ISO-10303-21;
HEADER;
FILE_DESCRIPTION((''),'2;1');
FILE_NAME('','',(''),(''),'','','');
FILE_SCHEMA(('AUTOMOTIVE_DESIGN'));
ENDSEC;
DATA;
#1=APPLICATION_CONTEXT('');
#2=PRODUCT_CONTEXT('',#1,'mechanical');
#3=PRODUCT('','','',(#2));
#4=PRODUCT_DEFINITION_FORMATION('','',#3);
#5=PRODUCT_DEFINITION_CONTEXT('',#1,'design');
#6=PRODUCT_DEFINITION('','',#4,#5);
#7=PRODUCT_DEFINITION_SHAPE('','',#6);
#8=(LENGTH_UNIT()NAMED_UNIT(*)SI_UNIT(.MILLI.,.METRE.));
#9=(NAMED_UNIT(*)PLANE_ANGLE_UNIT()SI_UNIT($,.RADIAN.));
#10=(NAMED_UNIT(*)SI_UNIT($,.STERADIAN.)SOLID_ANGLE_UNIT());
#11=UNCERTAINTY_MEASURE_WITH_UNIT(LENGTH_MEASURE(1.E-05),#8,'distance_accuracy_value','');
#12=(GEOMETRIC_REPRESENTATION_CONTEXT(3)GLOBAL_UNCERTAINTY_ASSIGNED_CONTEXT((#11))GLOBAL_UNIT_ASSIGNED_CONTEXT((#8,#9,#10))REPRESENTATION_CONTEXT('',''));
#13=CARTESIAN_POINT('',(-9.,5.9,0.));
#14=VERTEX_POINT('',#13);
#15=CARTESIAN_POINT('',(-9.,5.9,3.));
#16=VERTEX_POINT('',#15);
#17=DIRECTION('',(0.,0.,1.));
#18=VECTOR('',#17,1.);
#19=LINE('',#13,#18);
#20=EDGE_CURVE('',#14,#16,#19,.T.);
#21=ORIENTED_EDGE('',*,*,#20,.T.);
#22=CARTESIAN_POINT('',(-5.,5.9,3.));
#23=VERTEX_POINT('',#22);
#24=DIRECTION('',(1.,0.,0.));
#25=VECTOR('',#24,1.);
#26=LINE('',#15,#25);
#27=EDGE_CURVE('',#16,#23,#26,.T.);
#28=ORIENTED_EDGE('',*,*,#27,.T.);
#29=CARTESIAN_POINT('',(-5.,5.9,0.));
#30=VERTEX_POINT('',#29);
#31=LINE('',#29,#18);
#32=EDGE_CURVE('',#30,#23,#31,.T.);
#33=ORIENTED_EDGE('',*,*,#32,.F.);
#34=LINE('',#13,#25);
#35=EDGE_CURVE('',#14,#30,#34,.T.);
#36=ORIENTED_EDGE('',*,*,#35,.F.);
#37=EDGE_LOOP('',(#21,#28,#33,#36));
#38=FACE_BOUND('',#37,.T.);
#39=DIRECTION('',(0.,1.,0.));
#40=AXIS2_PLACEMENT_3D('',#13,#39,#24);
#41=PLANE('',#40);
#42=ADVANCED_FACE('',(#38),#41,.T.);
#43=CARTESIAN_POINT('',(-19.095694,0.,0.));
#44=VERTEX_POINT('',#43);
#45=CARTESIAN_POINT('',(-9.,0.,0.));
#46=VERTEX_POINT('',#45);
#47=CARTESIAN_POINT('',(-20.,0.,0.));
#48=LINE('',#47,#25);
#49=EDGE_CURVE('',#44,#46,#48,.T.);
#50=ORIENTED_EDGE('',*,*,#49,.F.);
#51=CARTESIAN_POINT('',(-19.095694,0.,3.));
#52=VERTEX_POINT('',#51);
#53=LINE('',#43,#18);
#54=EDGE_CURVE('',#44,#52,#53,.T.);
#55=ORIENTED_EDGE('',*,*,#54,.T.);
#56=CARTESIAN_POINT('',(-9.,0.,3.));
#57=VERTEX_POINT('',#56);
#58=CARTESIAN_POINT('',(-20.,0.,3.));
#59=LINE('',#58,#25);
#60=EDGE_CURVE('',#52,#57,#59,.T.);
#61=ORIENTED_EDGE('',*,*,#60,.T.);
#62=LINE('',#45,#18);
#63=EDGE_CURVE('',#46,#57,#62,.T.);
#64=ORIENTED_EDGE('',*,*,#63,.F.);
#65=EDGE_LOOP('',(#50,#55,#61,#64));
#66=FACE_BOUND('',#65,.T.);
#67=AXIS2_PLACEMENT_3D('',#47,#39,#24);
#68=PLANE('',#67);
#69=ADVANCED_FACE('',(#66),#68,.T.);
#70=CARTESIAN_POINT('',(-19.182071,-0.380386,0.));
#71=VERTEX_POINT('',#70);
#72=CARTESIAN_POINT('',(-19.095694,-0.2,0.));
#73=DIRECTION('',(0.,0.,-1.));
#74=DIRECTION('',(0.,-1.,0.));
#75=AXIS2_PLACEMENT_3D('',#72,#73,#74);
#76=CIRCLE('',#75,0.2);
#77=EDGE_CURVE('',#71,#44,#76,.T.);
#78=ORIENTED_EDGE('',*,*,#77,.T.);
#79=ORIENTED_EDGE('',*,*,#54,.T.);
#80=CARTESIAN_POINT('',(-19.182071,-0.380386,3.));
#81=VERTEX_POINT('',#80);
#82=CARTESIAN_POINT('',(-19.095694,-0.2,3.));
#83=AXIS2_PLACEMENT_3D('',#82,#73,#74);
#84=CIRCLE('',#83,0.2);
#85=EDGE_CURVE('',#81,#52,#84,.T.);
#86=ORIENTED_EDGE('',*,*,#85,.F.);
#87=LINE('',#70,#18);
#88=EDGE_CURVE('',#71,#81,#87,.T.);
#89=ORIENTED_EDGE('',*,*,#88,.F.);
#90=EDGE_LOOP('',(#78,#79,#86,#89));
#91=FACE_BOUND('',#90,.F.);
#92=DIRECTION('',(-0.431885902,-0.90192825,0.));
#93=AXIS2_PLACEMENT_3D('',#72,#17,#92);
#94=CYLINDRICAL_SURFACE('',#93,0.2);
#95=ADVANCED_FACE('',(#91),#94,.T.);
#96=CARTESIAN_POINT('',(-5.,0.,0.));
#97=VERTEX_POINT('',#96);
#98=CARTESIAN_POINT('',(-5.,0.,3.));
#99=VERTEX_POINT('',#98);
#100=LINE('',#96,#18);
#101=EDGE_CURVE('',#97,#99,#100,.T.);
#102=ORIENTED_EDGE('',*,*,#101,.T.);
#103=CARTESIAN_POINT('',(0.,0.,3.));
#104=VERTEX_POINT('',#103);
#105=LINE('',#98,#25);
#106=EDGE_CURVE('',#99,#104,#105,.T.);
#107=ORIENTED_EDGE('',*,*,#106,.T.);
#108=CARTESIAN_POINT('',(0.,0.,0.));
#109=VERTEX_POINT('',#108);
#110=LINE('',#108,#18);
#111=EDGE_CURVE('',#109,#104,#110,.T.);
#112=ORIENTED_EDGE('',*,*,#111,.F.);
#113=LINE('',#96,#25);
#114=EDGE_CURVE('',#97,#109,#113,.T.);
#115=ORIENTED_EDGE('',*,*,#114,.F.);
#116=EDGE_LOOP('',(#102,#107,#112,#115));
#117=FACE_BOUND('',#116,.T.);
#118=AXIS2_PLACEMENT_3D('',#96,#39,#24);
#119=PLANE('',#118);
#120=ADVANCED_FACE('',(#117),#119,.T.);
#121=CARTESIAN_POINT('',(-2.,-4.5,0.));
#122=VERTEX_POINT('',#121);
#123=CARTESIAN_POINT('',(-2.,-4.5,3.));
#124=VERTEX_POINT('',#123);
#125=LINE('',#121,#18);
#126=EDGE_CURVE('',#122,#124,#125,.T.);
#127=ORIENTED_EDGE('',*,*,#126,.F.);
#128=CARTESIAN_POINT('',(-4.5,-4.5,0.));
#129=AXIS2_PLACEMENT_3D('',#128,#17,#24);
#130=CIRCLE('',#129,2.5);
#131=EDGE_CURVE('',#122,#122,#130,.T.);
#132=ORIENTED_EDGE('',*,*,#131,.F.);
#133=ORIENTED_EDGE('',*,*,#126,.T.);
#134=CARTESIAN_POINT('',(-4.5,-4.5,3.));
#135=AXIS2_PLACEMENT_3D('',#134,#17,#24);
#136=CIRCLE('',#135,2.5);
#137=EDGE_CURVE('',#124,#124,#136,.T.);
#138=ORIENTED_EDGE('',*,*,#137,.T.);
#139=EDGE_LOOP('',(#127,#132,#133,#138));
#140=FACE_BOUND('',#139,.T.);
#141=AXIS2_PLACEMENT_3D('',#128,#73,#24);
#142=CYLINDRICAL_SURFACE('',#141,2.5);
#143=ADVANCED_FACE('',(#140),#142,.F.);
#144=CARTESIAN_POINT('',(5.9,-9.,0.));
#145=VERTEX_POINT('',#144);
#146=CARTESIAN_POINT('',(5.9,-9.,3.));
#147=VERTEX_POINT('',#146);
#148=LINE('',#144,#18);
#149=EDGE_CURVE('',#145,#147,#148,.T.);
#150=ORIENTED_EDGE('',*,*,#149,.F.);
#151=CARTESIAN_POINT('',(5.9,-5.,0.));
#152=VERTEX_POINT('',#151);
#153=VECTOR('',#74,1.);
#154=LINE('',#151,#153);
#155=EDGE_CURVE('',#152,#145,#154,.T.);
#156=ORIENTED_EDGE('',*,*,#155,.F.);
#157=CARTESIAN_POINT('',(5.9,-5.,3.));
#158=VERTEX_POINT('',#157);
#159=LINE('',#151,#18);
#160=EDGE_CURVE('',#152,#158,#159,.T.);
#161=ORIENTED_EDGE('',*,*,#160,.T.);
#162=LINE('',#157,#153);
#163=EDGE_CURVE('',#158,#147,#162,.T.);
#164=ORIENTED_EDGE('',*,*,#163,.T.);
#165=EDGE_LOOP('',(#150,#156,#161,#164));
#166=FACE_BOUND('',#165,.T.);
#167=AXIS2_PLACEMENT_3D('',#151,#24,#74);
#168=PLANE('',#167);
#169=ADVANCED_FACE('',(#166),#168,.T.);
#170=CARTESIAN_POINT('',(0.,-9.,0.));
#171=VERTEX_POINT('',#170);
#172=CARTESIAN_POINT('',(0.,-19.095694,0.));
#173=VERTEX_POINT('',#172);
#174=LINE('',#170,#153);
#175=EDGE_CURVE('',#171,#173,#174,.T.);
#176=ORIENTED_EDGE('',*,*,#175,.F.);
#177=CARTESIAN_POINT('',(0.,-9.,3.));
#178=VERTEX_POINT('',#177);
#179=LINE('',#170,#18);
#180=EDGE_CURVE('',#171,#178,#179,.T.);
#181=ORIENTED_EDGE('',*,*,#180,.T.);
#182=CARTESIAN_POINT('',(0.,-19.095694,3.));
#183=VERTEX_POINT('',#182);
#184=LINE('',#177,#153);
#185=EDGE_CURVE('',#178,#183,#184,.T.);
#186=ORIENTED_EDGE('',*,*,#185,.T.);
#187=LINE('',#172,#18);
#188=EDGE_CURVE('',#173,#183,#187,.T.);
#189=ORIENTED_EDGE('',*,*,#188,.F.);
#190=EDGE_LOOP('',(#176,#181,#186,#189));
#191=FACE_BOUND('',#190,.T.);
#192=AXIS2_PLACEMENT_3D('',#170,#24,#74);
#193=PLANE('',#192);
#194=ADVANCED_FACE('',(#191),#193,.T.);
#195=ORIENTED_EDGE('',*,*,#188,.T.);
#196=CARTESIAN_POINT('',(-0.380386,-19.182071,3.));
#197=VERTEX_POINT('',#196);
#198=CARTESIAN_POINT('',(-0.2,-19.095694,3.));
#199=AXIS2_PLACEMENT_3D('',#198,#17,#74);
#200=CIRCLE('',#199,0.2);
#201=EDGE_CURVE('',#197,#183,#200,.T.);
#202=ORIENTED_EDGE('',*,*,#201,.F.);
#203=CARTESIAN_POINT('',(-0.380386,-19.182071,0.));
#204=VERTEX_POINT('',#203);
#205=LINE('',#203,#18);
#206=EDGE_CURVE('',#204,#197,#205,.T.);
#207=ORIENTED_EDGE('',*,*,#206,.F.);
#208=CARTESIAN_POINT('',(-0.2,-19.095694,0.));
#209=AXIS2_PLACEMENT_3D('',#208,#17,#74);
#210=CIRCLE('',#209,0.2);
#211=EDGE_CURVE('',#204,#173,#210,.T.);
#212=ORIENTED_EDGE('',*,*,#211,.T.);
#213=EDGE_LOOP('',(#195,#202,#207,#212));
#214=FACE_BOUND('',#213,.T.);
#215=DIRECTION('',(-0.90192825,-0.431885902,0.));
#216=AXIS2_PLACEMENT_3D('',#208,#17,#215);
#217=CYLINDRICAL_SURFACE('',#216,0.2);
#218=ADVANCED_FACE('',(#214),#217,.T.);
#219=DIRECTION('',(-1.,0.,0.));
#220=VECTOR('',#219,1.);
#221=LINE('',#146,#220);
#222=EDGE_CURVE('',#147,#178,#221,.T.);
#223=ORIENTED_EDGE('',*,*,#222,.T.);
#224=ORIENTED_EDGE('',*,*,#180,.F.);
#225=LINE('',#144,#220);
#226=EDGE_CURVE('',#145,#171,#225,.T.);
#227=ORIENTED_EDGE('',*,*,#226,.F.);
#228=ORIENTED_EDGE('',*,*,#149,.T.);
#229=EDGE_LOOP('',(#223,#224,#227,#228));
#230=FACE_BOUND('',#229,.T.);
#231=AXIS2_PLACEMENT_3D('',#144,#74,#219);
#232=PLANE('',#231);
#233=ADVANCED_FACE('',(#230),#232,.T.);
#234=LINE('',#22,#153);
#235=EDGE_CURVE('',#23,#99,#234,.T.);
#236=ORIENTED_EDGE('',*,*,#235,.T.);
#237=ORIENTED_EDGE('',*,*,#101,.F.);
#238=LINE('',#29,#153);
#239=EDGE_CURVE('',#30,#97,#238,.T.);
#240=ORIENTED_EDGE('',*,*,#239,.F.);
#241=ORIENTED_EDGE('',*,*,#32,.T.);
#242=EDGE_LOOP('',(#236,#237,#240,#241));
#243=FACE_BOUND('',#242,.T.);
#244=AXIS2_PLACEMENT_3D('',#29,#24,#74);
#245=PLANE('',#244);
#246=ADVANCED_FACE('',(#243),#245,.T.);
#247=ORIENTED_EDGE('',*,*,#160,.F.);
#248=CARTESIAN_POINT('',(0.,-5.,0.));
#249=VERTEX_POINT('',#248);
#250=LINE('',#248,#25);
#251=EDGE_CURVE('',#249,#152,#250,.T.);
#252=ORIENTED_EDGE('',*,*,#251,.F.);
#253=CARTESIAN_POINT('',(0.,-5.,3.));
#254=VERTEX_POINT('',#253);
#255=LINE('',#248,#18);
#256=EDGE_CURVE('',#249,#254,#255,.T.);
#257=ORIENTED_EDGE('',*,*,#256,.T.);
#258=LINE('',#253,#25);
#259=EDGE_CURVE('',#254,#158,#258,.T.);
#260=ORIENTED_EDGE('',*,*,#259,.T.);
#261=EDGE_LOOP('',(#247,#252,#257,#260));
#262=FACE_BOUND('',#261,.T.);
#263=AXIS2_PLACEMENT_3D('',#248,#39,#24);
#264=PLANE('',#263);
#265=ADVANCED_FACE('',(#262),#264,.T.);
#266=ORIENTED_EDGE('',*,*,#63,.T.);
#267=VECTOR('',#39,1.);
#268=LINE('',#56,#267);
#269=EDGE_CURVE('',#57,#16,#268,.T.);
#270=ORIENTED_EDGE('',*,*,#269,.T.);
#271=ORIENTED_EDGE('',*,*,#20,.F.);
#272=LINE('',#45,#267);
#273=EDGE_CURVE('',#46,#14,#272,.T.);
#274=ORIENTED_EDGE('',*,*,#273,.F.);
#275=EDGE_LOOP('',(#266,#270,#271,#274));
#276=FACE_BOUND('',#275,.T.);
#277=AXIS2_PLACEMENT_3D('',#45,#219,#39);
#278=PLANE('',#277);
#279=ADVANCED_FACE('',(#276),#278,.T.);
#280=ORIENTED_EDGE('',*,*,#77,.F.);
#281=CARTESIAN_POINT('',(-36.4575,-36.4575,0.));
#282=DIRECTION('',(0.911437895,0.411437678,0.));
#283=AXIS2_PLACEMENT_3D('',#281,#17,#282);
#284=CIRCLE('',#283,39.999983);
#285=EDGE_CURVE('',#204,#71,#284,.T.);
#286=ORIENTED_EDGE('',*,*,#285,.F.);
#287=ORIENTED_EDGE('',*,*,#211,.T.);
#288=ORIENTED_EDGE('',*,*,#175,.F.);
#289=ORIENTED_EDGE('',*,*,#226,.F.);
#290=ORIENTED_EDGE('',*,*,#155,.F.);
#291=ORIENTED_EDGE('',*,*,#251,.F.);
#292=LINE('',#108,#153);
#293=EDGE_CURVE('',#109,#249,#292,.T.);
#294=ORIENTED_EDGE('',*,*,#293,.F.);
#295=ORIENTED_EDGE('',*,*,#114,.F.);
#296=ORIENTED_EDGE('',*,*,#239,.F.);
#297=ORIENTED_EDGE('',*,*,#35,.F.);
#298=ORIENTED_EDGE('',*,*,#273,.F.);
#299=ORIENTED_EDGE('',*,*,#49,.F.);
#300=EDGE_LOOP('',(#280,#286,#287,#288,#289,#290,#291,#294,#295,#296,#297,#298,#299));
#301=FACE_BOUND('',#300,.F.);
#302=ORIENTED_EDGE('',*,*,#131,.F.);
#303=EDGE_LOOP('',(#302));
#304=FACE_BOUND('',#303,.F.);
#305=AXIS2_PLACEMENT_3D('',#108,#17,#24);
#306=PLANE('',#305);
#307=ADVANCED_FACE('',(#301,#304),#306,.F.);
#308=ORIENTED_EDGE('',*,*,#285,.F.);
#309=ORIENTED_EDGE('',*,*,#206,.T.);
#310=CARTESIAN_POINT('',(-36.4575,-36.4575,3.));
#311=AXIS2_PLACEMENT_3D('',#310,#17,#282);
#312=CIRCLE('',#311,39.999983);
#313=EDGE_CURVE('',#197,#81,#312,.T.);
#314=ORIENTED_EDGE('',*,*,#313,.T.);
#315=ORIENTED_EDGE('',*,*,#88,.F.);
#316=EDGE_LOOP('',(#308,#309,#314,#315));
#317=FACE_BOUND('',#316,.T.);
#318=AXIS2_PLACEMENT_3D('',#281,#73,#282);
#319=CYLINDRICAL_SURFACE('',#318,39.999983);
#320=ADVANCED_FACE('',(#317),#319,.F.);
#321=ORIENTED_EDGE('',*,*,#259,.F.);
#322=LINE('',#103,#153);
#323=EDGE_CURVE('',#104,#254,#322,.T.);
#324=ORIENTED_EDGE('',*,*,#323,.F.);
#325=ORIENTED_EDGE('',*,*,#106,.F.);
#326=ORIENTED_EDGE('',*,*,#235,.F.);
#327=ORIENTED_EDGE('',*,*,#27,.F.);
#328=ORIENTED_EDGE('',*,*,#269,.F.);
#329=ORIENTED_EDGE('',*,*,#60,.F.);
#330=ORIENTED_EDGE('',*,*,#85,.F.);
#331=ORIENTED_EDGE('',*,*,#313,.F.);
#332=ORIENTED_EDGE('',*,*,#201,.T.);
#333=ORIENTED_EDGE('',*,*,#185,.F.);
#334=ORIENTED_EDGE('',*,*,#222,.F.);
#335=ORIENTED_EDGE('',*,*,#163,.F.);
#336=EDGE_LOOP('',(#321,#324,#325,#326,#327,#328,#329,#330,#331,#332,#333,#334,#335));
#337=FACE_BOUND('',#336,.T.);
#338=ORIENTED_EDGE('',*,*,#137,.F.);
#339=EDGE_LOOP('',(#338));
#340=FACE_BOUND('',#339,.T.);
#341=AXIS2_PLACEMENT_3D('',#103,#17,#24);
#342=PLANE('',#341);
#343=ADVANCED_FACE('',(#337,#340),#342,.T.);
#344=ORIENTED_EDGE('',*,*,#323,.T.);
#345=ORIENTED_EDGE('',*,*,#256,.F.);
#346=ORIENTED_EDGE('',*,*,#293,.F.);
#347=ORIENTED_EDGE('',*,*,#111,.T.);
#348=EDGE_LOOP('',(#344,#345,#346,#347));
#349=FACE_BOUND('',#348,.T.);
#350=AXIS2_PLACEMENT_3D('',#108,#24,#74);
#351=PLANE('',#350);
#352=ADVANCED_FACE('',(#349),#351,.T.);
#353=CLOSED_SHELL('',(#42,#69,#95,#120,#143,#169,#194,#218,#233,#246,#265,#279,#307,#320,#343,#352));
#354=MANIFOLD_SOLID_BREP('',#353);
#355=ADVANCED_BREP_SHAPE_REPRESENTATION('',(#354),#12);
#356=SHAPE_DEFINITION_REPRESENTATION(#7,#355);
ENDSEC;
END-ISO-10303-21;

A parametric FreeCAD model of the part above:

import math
import FreeCAD as App
import Part
import Sketcher


def edges_at(feature, points):
    """Names of the edges that pass closest to the given points."""
    edges = feature.Shape.Edges
    near = lambda p: min(range(len(edges)), key=lambda i: edges[i].distToShape(Part.Vertex(*p))[0])
    return sorted({f"Edge{near(p) + 1}" for p in points})

doc = App.newDocument("Part")
body = doc.addObject("PartDesign::Body", "Body")

# Sketch on XY plane
sketch1 = body.newObject("Sketcher::SketchObject", "Sketch")
sketch1.AttachmentSupport = (doc.getObject("XY_Plane"), [""])
sketch1.MapMode = "FlatFace"
sketch1.addGeometry(Part.ArcOfCircle(Part.Circle(App.Vector(-36.5, -36.5, 0), App.Vector(0, 0, 1), 40), math.radians(24), math.radians(66)), False)
sketch1.addGeometry(Part.LineSegment(App.Vector(0, -20, 0), App.Vector(0, -9, 0)), False)
sketch1.addGeometry(Part.LineSegment(App.Vector(0, -9, 0), App.Vector(5.9, -9, 0)), False)
sketch1.addGeometry(Part.LineSegment(App.Vector(5.9, -9, 0), App.Vector(5.9, -5, 0)), False)
sketch1.addGeometry(Part.LineSegment(App.Vector(5.9, -5, 0), App.Vector(0, -5, 0)), False)
sketch1.addGeometry(Part.LineSegment(App.Vector(0, -5, 0), App.Vector(0, 0, 0)), False)
sketch1.addGeometry(Part.LineSegment(App.Vector(0, 0, 0), App.Vector(-5, 0, 0)), False)
sketch1.addGeometry(Part.LineSegment(App.Vector(-5, 0, 0), App.Vector(-5, 5.9, 0)), False)
sketch1.addGeometry(Part.LineSegment(App.Vector(-5, 5.9, 0), App.Vector(-9, 5.9, 0)), False)
sketch1.addGeometry(Part.LineSegment(App.Vector(-9, 5.9, 0), App.Vector(-9, 0, 0)), False)
sketch1.addGeometry(Part.LineSegment(App.Vector(-9, 0, 0), App.Vector(-20, 0, 0)), False)
sketch1.addGeometry(Part.Circle(App.Vector(-4.5, -4.5, 0), App.Vector(0, 0, 1), 2.5), False)
sketch1.addConstraint(Sketcher.Constraint("Coincident", 0, 1, 1, 1))
sketch1.addConstraint(Sketcher.Constraint("Coincident", 1, 2, 2, 1))
sketch1.addConstraint(Sketcher.Constraint("Coincident", 2, 2, 3, 1))
sketch1.addConstraint(Sketcher.Constraint("Coincident", 3, 2, 4, 1))
sketch1.addConstraint(Sketcher.Constraint("Coincident", 4, 2, 5, 1))
sketch1.addConstraint(Sketcher.Constraint("Coincident", 5, 2, 6, 1))
sketch1.addConstraint(Sketcher.Constraint("Coincident", 6, 2, 7, 1))
sketch1.addConstraint(Sketcher.Constraint("Coincident", 7, 2, 8, 1))
sketch1.addConstraint(Sketcher.Constraint("Coincident", 8, 2, 9, 1))
sketch1.addConstraint(Sketcher.Constraint("Coincident", 9, 2, 10, 1))
sketch1.addConstraint(Sketcher.Constraint("Coincident", 10, 2, 0, 2))
sketch1.addConstraint(Sketcher.Constraint("Vertical", 1))
sketch1.addConstraint(Sketcher.Constraint("Horizontal", 2))
sketch1.addConstraint(Sketcher.Constraint("Vertical", 3))
sketch1.addConstraint(Sketcher.Constraint("Horizontal", 4))
sketch1.addConstraint(Sketcher.Constraint("Vertical", 5))
sketch1.addConstraint(Sketcher.Constraint("Horizontal", 6))
sketch1.addConstraint(Sketcher.Constraint("Vertical", 7))
sketch1.addConstraint(Sketcher.Constraint("Horizontal", 8))
sketch1.addConstraint(Sketcher.Constraint("Vertical", 9))
sketch1.addConstraint(Sketcher.Constraint("Horizontal", 10))
sketch1.addConstraint(Sketcher.Constraint("Coincident", 5, 2, -1, 1))
sketch1.addConstraint(Sketcher.Constraint("PointOnObject", 0, 1, -2))
sketch1.addConstraint(Sketcher.Constraint("PointOnObject", 9, 2, -1))
sketch1.addConstraint(Sketcher.Constraint("Equal", 10, 1))
sketch1.addConstraint(Sketcher.Constraint("Equal", 8, 3))
sketch1.addConstraint(Sketcher.Constraint("Equal", 6, 5))
sketch1.addConstraint(Sketcher.Constraint("Equal", 4, 7))
sketch1.addConstraint(Sketcher.Constraint("Diameter", 11, 5.0))
sketch1.addConstraint(Sketcher.Constraint("Radius", 0, 40.0))
sketch1.addConstraint(Sketcher.Constraint("DistanceX", 6, 2, 6, 1, 5.0))
sketch1.addConstraint(Sketcher.Constraint("DistanceX", 8, 2, 8, 1, 4.0))
sketch1.addConstraint(Sketcher.Constraint("DistanceX", 2, 1, 2, 2, 5.9))
sketch1.addConstraint(Sketcher.Constraint("DistanceY", 0, 1, -1, 1, 20.0))
sketch1.addConstraint(Sketcher.Constraint("DistanceX", 11, 3, -1, 1, 4.5))
sketch1.addConstraint(Sketcher.Constraint("DistanceY", 11, 3, -1, 1, 4.5))
pad1 = body.newObject("PartDesign::Pad", "Pad")
pad1.Profile = sketch1
pad1.Length = 3
doc.recompute()

fillet = body.newObject("PartDesign::Fillet", "Fillet")
fillet.Base = (pad1, edges_at(pad1, [(0, -20, 1.5), (-20, 0, 1.5)]))
fillet.Radius = 0.2

doc.recompute()
